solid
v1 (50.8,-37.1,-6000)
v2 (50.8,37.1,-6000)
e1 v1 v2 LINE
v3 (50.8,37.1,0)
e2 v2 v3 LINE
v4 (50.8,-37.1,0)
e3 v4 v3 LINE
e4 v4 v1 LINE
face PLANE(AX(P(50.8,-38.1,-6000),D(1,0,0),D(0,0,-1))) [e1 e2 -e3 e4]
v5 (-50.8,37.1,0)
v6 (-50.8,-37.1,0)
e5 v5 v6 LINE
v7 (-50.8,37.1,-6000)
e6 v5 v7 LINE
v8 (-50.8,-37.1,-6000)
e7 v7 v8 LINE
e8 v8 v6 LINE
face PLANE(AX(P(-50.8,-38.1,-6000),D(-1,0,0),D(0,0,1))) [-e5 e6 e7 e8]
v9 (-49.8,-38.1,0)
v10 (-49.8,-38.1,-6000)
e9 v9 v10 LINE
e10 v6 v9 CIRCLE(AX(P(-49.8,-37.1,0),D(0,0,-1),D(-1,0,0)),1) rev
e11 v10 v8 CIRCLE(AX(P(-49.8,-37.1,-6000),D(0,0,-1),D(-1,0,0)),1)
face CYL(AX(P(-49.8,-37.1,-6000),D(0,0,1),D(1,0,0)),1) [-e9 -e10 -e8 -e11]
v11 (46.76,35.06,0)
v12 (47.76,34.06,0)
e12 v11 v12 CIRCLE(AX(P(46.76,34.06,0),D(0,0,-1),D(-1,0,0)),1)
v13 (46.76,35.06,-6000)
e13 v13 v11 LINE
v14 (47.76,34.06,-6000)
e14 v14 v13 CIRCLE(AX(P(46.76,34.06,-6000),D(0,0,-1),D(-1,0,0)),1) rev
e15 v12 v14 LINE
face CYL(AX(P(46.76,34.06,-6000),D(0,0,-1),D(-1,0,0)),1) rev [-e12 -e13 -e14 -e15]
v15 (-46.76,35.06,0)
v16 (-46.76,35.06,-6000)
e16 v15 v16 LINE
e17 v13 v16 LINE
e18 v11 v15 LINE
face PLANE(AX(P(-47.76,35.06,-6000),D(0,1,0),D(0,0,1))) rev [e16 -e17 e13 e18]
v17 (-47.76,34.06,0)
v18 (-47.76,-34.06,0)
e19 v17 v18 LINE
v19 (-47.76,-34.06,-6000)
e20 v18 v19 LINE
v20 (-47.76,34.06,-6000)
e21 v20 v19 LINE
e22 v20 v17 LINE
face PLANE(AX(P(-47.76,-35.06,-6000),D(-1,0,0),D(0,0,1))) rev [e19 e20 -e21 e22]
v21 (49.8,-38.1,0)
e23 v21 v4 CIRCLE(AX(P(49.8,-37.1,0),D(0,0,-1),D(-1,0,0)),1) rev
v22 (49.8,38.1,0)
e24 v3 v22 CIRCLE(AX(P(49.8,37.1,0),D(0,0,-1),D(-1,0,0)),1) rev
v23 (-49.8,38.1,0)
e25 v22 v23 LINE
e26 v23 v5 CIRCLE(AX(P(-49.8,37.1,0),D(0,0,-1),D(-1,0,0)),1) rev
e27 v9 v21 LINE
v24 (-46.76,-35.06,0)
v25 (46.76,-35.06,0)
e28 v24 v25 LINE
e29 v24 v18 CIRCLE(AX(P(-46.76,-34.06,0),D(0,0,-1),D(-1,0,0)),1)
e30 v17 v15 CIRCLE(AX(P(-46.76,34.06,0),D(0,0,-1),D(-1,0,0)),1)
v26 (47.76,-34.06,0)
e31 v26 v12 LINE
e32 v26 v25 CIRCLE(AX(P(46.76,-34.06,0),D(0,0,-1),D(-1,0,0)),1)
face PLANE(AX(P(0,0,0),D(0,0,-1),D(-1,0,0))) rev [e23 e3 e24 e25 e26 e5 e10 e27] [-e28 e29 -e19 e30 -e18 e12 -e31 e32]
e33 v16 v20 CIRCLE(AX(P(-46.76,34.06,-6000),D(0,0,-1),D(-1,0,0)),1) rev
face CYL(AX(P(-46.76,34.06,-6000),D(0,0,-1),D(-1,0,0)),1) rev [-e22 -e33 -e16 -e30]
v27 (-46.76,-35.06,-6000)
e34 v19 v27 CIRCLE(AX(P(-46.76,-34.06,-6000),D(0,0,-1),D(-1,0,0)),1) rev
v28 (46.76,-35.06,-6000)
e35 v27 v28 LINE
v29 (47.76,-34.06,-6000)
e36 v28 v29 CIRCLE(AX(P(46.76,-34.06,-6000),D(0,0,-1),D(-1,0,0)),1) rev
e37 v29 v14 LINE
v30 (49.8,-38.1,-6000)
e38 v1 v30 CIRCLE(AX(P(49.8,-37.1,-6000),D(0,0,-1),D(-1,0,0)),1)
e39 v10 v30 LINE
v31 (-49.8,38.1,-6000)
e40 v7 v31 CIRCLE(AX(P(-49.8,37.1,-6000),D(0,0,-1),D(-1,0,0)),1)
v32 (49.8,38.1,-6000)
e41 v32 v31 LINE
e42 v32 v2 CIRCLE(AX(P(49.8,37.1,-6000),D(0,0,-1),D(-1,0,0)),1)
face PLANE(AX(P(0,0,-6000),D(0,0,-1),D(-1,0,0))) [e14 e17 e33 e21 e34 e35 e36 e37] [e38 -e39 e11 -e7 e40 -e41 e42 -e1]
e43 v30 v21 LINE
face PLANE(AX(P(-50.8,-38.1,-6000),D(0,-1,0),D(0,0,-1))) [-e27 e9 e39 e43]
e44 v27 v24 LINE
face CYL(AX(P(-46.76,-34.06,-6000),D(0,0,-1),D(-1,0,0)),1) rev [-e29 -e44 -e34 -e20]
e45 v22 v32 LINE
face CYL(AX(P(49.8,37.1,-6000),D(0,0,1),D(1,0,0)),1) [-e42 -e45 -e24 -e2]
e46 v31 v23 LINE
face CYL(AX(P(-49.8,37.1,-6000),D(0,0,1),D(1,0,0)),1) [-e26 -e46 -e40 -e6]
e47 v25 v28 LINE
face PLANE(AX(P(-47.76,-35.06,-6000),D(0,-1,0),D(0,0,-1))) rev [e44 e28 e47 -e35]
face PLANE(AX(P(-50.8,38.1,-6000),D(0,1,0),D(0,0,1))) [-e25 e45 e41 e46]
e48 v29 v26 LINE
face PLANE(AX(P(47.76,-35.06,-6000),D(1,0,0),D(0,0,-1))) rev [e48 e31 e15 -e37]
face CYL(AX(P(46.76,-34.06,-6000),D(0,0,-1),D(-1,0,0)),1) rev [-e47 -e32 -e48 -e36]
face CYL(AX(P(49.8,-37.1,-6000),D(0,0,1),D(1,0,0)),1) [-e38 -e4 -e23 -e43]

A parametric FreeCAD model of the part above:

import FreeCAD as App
import Part
import Sketcher


def edges_at(feature, points):
    """Names of the edges that pass closest to the given points."""
    edges = feature.Shape.Edges
    near = lambda p: min(range(len(edges)), key=lambda i: edges[i].distToShape(Part.Vertex(*p))[0])
    return sorted({f"Edge{near(p) + 1}" for p in points})

doc = App.newDocument("Part")
body = doc.addObject("PartDesign::Body", "Body")

# Sketch on XY plane
sketch1 = body.newObject("Sketcher::SketchObject", "Sketch")
sketch1.AttachmentSupport = (doc.getObject("XY_Plane"), [""])
sketch1.MapMode = "FlatFace"
sketch1.addGeometry([
    Part.LineSegment(App.Vector(-50.8, 38.1, 0), App.Vector(-50.8, -38.1, 0)),  # 0
    Part.LineSegment(App.Vector(-50.8, -38.1, 0), App.Vector(50.8, -38.1, 0)),  # 1
    Part.LineSegment(App.Vector(50.8, -38.1, 0), App.Vector(50.8, 38.1, 0)),  # 2
    Part.LineSegment(App.Vector(50.8, 38.1, 0), App.Vector(-50.8, 38.1, 0)),  # 3
    Part.LineSegment(App.Vector(47.76, -35.06, 0), App.Vector(-47.76, -35.06, 0)),  # 4
    Part.LineSegment(App.Vector(-47.76, -35.06, 0), App.Vector(-47.76, 35.06, 0)),  # 5
    Part.LineSegment(App.Vector(-47.76, 35.06, 0), App.Vector(47.76, 35.06, 0)),  # 6
    Part.LineSegment(App.Vector(47.76, 35.06, 0), App.Vector(47.76, -35.06, 0)),  # 7
], False)
sketch1.addConstraint([
    Sketcher.Constraint("Coincident", 0, 2, 1, 1),
    Sketcher.Constraint("Coincident", 1, 2, 2, 1),
    Sketcher.Constraint("Coincident", 2, 2, 3, 1),
    Sketcher.Constraint("Coincident", 3, 2, 0, 1),
    Sketcher.Constraint("Coincident", 4, 2, 5, 1),
    Sketcher.Constraint("Coincident", 5, 2, 6, 1),
    Sketcher.Constraint("Coincident", 6, 2, 7, 1),
    Sketcher.Constraint("Coincident", 7, 2, 4, 1),
    Sketcher.Constraint("Vertical", 0),
    Sketcher.Constraint("Horizontal", 1),
    Sketcher.Constraint("Vertical", 2),
    Sketcher.Constraint("Horizontal", 3),
    Sketcher.Constraint("Horizontal", 4),
    Sketcher.Constraint("Vertical", 5),
    Sketcher.Constraint("Horizontal", 6),
    Sketcher.Constraint("Vertical", 7),
    Sketcher.Constraint("Symmetric", 0, 2, 2, 2, -1, 1),
    Sketcher.Constraint("Symmetric", 4, 2, 6, 2, -1, 1),
    Sketcher.Constraint("DistanceX", 1, 1, 1, 2, 101.6),
    Sketcher.Constraint("DistanceY", 0, 2, 0, 1, 76.2),
    Sketcher.Constraint("DistanceX", 4, 2, 4, 1, 95.52),
    Sketcher.Constraint("DistanceY", 5, 1, 5, 2, 70.12),
])
pad1 = body.newObject("PartDesign::Pad", "Pad")
pad1.Profile = sketch1
pad1.Length = 6000
pad1.Reversed = True
doc.recompute()

fillet = body.newObject("PartDesign::Fillet", "Fillet")
fillet.Base = (pad1, edges_at(pad1, [
    (47.76, -35.06, -3000),
    (-47.76, -35.06, -3000),
    (-47.76, 35.06, -3000),
    (47.76, 35.06, -3000),
    (50.8, -38.1, -3000),
    (-50.8, -38.1, -3000),
    (-50.8, 38.1, -3000),
    (50.8, 38.1, -3000),
]))
fillet.Radius = 1

doc.recompute()
